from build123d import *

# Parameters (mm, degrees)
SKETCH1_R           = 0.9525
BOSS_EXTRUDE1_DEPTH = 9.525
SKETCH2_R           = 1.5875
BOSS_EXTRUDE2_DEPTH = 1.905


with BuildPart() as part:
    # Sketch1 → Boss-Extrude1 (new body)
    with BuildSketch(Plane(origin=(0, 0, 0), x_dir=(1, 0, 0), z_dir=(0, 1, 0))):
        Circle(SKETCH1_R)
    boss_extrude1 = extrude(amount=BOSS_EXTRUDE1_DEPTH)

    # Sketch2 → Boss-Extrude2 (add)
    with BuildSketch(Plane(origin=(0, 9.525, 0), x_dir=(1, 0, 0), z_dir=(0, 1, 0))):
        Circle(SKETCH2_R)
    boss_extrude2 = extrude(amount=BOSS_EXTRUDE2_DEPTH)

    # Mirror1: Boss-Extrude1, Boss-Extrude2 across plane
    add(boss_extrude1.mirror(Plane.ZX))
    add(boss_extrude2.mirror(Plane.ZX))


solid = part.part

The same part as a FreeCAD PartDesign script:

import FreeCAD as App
import Part
import Sketcher
Q = App.Units.Quantity

doc = App.newDocument("Part")
body = doc.addObject("PartDesign::Body", "Body")

sketch1 = body.newObject("Sketcher::SketchObject", "Sketch")
sketch1.AttachmentSupport = (doc.getObject("XZ_Plane"), [""])
sketch1.MapMode = "FlatFace"
sketch1.addGeometry(Part.Circle(App.Vector(0, 0, 0), App.Vector(0, 0, 1), 1), False)
sketch1.addConstraint([
    Sketcher.Constraint("Coincident", 0, 3, -1, 1),
    Sketcher.Constraint("Diameter", 0, Q("0.075 in")),
])
pad1 = body.newObject("PartDesign::Pad", "Pad")
pad1.Profile = sketch1
pad1.Length = Q("0.375 in")
pad1.Reversed = True

sketch2 = body.newObject("Sketcher::SketchObject", "Sketch001")
sketch2.AttachmentSupport = (doc.getObject("XZ_Plane"), [""])
sketch2.MapMode = "FlatFace"
sketch2.AttachmentOffset = App.Placement(App.Vector(0, 0, -0.375 * 25.4), App.Rotation())
sketch2.addGeometry(Part.Circle(App.Vector(0, 0, 0), App.Vector(0, 0, 1), 1.6), False)
sketch2.addConstraint([
    Sketcher.Constraint("Coincident", 0, 3, -1, 1),
    Sketcher.Constraint("Diameter", 0, Q("0.125 in")),
])
pad2 = body.newObject("PartDesign::Pad", "Pad001")
pad2.Profile = sketch2
pad2.Length = Q("0.075 in")
pad2.Reversed = True
doc.recompute()

mirrored = body.newObject("PartDesign::Mirrored", "Mirrored")
mirrored.Originals = [pad1, pad2]
mirrored.MirrorPlane = (doc.getObject("XZ_Plane"), [""])
body.Tip = mirrored

doc.recompute()
